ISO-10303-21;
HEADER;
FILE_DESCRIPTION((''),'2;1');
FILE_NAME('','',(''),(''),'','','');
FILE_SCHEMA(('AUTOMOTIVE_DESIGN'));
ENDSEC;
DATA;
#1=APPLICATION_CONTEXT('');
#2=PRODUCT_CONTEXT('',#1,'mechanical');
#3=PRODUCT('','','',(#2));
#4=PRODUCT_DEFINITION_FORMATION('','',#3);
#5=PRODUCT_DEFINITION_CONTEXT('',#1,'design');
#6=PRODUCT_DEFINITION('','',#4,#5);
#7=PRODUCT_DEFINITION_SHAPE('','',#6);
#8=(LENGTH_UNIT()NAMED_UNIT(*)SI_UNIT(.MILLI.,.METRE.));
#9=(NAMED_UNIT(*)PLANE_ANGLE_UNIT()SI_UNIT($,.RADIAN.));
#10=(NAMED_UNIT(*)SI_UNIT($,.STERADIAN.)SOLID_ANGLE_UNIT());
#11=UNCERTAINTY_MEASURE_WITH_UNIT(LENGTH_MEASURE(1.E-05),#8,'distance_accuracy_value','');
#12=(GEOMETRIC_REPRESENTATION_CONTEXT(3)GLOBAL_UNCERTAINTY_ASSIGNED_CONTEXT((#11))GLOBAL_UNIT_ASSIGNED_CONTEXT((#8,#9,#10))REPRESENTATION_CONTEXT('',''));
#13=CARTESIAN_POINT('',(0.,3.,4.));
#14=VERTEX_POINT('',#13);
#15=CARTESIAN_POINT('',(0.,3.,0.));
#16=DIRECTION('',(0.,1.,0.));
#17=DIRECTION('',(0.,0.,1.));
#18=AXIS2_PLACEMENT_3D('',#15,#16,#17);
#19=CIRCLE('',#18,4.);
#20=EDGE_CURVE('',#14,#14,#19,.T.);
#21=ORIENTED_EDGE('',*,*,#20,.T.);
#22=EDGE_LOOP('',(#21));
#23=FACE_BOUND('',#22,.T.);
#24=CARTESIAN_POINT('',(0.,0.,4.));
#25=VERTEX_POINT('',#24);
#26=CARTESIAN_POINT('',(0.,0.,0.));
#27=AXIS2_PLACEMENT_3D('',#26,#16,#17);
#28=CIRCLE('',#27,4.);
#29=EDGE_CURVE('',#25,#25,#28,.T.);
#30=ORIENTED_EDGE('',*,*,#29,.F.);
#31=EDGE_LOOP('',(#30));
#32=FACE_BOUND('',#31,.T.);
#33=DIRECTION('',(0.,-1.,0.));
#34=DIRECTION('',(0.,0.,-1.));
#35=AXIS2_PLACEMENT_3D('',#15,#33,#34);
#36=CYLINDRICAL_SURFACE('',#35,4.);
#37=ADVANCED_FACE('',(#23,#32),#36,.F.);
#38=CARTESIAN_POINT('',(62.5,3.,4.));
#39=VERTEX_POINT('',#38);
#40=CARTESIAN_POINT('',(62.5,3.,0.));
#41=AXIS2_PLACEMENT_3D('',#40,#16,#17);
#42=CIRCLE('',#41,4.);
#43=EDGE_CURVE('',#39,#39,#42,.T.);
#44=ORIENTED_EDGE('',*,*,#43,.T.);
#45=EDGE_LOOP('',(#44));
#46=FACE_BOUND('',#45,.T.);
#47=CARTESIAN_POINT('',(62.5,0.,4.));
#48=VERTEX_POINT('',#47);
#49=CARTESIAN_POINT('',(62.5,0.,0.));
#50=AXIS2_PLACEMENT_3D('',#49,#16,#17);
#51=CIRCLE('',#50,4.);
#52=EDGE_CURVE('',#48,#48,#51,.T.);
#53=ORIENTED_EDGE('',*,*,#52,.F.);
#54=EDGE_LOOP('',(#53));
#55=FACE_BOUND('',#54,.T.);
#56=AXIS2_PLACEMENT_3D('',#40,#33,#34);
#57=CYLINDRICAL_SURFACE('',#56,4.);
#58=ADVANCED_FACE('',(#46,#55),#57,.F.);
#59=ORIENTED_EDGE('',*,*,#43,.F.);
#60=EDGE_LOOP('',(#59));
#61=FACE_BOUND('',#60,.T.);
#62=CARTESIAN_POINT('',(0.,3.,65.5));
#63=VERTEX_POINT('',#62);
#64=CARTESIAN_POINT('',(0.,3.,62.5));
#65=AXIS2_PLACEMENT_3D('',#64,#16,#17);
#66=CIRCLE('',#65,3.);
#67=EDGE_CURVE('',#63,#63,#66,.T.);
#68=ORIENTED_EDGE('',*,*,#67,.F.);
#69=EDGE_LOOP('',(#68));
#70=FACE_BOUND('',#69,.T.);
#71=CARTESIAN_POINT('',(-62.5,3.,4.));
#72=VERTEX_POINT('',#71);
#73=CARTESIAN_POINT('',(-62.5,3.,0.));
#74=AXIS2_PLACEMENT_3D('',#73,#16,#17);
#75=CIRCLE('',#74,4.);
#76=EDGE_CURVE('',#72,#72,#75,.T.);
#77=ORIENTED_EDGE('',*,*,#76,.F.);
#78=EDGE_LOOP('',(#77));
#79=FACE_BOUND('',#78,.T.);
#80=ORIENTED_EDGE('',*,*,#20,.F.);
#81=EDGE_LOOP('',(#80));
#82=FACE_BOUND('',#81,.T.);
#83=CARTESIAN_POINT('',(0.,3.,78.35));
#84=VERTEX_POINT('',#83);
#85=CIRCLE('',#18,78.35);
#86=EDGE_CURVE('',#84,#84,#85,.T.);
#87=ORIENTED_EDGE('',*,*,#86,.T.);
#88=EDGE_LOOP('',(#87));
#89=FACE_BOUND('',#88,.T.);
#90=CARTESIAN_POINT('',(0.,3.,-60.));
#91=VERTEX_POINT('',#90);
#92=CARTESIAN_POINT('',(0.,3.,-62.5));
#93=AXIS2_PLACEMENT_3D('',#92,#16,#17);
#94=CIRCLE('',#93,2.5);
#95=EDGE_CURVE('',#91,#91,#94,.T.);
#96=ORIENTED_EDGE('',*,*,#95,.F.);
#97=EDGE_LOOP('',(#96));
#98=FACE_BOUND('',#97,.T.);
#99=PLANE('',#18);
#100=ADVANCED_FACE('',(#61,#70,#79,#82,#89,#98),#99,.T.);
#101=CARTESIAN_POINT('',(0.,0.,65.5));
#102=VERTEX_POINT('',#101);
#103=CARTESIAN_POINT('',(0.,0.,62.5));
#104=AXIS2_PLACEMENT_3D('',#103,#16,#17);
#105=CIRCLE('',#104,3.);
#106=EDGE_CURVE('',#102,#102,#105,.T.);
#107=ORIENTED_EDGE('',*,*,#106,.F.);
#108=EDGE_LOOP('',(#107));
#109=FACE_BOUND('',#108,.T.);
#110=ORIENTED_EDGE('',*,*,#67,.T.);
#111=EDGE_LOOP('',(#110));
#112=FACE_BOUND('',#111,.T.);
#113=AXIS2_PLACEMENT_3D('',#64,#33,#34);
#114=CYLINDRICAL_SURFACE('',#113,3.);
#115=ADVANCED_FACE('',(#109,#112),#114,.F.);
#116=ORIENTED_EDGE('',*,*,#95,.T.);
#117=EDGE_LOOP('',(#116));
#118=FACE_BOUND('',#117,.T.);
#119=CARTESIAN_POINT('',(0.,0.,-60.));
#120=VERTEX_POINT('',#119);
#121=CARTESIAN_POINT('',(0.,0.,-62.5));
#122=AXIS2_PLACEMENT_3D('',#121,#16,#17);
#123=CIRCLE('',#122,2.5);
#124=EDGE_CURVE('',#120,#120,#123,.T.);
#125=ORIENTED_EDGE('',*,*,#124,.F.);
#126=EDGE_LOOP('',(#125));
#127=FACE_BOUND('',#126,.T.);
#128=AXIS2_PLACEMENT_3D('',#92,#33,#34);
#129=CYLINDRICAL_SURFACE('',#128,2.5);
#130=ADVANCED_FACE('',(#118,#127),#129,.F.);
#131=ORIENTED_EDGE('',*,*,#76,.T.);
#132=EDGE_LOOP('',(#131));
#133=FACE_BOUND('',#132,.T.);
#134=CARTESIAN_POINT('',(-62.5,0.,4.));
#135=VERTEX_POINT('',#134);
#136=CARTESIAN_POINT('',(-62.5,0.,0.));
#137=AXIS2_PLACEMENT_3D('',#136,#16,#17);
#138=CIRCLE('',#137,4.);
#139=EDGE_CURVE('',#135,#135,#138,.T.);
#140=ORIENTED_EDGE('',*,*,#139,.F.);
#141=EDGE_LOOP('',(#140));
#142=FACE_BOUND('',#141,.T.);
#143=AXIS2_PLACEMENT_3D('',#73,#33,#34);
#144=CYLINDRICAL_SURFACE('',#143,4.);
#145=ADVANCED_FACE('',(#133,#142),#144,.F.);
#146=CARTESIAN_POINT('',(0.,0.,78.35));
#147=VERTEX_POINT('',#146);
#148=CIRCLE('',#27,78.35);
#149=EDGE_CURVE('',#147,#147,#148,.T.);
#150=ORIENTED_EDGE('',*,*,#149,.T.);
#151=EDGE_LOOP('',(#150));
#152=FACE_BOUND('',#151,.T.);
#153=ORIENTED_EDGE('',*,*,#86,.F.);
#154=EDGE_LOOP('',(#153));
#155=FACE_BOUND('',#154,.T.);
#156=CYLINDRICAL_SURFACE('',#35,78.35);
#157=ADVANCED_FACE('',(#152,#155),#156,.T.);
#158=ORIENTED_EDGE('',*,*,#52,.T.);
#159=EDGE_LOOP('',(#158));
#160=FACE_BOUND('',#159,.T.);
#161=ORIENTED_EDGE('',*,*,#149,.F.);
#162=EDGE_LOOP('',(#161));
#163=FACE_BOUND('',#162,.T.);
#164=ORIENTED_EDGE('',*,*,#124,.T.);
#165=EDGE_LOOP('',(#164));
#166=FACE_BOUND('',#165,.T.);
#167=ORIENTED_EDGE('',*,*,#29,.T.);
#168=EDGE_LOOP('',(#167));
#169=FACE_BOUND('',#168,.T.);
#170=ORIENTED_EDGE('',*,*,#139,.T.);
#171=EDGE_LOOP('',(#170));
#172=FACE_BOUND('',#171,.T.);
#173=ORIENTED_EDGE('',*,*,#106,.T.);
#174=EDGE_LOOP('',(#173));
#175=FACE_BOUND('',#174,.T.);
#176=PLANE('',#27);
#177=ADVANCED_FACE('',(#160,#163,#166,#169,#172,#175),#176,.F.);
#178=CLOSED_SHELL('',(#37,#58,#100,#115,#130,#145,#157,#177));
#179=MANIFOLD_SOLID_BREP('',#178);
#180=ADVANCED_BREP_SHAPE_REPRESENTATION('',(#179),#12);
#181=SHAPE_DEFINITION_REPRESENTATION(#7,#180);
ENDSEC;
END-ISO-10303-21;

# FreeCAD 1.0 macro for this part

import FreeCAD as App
import Part
import Sketcher
from FreeCAD import Vector
Q = App.Units.Quantity

doc = App.newDocument("Part")
params = doc.addObject("Spreadsheet::Sheet", "Params")
for row, (alias, value) in enumerate([
    ("sketch1_diameter", "8 mm"),
    ("sketch1_diameter2", "5 mm"),
    ("sketch1_diameter3", "6 mm"),
    ("sketch1_diameter4", "156.7 mm"),
    ("pad1_length", "3 mm"),
], start=1):
    params.set(f"A{row}", alias)
    params.set(f"B{row}", "=" + value)
    params.setAlias(f"B{row}", alias)

body = doc.addObject("PartDesign::Body", "Body")

sketch1 = doc.addObject("Sketcher::SketchObject", "Sketch")
body.addObject(sketch1)
sketch1.AttachmentSupport = (doc.XZ_Plane, [""])
sketch1.MapMode = "FlatFace"
sketch1.addGeometry([
    Part.Circle(Vector(0, 0, 0), Vector(0, 0, 1), 78.3),
    Part.Circle(Vector(-62.5, 0, 0), Vector(0, 0, 1), 4),
    Part.Circle(Vector(0, -62.5, 0), Vector(0, 0, 1), 2.5),
    Part.Circle(Vector(0, 0, 0), Vector(0, 0, 1), 4),
    Part.Circle(Vector(62.5, 0, 0), Vector(0, 0, 1), 4),
    Part.Circle(Vector(0, 62.5, 0), Vector(0, 0, 1), 3),
], False)
sketch1.addConstraint([
    Sketcher.Constraint("Coincident", 0, 3, -1, 1),
    Sketcher.Constraint("Coincident", 3, 3, -1, 1),
    Sketcher.Constraint("Equal", 1, 3),
    Sketcher.Constraint("Equal", 3, 4),
    Sketcher.Constraint("Symmetric", 1, 3, 4, 3, -1, 1),
    Sketcher.Constraint("Symmetric", 2, 3, 5, 3, -1, 1),
    Sketcher.Constraint("PointOnObject", 1, 3, -1),
    Sketcher.Constraint("PointOnObject", 2, 3, -2),
    Sketcher.Constraint("Diameter", 1, Q("8 mm")),
    Sketcher.Constraint("Diameter", 2, Q("5 mm")),
    Sketcher.Constraint("Diameter", 5, Q("6 mm")),
    Sketcher.Constraint("Diameter", 0, Q("156.7 mm")),
    Sketcher.Constraint("DistanceX", 1, 3, 4, 3, Q("125 mm")),
    Sketcher.Constraint("DistanceY", 2, 3, 5, 3, Q("125 mm")),
])
sketch1.setExpression("Constraints[8]", "Params.sketch1_diameter")
sketch1.setExpression("Constraints[9]", "Params.sketch1_diameter2")
sketch1.setExpression("Constraints[10]", "Params.sketch1_diameter3")
sketch1.setExpression("Constraints[11]", "Params.sketch1_diameter4")
pad1 = doc.addObject("PartDesign::Pad", "Pad")
body.addObject(pad1)
pad1.Profile = sketch1
pad1.setExpression("Length", "Params.pad1_length")
pad1.Reversed = True

doc.recompute()
